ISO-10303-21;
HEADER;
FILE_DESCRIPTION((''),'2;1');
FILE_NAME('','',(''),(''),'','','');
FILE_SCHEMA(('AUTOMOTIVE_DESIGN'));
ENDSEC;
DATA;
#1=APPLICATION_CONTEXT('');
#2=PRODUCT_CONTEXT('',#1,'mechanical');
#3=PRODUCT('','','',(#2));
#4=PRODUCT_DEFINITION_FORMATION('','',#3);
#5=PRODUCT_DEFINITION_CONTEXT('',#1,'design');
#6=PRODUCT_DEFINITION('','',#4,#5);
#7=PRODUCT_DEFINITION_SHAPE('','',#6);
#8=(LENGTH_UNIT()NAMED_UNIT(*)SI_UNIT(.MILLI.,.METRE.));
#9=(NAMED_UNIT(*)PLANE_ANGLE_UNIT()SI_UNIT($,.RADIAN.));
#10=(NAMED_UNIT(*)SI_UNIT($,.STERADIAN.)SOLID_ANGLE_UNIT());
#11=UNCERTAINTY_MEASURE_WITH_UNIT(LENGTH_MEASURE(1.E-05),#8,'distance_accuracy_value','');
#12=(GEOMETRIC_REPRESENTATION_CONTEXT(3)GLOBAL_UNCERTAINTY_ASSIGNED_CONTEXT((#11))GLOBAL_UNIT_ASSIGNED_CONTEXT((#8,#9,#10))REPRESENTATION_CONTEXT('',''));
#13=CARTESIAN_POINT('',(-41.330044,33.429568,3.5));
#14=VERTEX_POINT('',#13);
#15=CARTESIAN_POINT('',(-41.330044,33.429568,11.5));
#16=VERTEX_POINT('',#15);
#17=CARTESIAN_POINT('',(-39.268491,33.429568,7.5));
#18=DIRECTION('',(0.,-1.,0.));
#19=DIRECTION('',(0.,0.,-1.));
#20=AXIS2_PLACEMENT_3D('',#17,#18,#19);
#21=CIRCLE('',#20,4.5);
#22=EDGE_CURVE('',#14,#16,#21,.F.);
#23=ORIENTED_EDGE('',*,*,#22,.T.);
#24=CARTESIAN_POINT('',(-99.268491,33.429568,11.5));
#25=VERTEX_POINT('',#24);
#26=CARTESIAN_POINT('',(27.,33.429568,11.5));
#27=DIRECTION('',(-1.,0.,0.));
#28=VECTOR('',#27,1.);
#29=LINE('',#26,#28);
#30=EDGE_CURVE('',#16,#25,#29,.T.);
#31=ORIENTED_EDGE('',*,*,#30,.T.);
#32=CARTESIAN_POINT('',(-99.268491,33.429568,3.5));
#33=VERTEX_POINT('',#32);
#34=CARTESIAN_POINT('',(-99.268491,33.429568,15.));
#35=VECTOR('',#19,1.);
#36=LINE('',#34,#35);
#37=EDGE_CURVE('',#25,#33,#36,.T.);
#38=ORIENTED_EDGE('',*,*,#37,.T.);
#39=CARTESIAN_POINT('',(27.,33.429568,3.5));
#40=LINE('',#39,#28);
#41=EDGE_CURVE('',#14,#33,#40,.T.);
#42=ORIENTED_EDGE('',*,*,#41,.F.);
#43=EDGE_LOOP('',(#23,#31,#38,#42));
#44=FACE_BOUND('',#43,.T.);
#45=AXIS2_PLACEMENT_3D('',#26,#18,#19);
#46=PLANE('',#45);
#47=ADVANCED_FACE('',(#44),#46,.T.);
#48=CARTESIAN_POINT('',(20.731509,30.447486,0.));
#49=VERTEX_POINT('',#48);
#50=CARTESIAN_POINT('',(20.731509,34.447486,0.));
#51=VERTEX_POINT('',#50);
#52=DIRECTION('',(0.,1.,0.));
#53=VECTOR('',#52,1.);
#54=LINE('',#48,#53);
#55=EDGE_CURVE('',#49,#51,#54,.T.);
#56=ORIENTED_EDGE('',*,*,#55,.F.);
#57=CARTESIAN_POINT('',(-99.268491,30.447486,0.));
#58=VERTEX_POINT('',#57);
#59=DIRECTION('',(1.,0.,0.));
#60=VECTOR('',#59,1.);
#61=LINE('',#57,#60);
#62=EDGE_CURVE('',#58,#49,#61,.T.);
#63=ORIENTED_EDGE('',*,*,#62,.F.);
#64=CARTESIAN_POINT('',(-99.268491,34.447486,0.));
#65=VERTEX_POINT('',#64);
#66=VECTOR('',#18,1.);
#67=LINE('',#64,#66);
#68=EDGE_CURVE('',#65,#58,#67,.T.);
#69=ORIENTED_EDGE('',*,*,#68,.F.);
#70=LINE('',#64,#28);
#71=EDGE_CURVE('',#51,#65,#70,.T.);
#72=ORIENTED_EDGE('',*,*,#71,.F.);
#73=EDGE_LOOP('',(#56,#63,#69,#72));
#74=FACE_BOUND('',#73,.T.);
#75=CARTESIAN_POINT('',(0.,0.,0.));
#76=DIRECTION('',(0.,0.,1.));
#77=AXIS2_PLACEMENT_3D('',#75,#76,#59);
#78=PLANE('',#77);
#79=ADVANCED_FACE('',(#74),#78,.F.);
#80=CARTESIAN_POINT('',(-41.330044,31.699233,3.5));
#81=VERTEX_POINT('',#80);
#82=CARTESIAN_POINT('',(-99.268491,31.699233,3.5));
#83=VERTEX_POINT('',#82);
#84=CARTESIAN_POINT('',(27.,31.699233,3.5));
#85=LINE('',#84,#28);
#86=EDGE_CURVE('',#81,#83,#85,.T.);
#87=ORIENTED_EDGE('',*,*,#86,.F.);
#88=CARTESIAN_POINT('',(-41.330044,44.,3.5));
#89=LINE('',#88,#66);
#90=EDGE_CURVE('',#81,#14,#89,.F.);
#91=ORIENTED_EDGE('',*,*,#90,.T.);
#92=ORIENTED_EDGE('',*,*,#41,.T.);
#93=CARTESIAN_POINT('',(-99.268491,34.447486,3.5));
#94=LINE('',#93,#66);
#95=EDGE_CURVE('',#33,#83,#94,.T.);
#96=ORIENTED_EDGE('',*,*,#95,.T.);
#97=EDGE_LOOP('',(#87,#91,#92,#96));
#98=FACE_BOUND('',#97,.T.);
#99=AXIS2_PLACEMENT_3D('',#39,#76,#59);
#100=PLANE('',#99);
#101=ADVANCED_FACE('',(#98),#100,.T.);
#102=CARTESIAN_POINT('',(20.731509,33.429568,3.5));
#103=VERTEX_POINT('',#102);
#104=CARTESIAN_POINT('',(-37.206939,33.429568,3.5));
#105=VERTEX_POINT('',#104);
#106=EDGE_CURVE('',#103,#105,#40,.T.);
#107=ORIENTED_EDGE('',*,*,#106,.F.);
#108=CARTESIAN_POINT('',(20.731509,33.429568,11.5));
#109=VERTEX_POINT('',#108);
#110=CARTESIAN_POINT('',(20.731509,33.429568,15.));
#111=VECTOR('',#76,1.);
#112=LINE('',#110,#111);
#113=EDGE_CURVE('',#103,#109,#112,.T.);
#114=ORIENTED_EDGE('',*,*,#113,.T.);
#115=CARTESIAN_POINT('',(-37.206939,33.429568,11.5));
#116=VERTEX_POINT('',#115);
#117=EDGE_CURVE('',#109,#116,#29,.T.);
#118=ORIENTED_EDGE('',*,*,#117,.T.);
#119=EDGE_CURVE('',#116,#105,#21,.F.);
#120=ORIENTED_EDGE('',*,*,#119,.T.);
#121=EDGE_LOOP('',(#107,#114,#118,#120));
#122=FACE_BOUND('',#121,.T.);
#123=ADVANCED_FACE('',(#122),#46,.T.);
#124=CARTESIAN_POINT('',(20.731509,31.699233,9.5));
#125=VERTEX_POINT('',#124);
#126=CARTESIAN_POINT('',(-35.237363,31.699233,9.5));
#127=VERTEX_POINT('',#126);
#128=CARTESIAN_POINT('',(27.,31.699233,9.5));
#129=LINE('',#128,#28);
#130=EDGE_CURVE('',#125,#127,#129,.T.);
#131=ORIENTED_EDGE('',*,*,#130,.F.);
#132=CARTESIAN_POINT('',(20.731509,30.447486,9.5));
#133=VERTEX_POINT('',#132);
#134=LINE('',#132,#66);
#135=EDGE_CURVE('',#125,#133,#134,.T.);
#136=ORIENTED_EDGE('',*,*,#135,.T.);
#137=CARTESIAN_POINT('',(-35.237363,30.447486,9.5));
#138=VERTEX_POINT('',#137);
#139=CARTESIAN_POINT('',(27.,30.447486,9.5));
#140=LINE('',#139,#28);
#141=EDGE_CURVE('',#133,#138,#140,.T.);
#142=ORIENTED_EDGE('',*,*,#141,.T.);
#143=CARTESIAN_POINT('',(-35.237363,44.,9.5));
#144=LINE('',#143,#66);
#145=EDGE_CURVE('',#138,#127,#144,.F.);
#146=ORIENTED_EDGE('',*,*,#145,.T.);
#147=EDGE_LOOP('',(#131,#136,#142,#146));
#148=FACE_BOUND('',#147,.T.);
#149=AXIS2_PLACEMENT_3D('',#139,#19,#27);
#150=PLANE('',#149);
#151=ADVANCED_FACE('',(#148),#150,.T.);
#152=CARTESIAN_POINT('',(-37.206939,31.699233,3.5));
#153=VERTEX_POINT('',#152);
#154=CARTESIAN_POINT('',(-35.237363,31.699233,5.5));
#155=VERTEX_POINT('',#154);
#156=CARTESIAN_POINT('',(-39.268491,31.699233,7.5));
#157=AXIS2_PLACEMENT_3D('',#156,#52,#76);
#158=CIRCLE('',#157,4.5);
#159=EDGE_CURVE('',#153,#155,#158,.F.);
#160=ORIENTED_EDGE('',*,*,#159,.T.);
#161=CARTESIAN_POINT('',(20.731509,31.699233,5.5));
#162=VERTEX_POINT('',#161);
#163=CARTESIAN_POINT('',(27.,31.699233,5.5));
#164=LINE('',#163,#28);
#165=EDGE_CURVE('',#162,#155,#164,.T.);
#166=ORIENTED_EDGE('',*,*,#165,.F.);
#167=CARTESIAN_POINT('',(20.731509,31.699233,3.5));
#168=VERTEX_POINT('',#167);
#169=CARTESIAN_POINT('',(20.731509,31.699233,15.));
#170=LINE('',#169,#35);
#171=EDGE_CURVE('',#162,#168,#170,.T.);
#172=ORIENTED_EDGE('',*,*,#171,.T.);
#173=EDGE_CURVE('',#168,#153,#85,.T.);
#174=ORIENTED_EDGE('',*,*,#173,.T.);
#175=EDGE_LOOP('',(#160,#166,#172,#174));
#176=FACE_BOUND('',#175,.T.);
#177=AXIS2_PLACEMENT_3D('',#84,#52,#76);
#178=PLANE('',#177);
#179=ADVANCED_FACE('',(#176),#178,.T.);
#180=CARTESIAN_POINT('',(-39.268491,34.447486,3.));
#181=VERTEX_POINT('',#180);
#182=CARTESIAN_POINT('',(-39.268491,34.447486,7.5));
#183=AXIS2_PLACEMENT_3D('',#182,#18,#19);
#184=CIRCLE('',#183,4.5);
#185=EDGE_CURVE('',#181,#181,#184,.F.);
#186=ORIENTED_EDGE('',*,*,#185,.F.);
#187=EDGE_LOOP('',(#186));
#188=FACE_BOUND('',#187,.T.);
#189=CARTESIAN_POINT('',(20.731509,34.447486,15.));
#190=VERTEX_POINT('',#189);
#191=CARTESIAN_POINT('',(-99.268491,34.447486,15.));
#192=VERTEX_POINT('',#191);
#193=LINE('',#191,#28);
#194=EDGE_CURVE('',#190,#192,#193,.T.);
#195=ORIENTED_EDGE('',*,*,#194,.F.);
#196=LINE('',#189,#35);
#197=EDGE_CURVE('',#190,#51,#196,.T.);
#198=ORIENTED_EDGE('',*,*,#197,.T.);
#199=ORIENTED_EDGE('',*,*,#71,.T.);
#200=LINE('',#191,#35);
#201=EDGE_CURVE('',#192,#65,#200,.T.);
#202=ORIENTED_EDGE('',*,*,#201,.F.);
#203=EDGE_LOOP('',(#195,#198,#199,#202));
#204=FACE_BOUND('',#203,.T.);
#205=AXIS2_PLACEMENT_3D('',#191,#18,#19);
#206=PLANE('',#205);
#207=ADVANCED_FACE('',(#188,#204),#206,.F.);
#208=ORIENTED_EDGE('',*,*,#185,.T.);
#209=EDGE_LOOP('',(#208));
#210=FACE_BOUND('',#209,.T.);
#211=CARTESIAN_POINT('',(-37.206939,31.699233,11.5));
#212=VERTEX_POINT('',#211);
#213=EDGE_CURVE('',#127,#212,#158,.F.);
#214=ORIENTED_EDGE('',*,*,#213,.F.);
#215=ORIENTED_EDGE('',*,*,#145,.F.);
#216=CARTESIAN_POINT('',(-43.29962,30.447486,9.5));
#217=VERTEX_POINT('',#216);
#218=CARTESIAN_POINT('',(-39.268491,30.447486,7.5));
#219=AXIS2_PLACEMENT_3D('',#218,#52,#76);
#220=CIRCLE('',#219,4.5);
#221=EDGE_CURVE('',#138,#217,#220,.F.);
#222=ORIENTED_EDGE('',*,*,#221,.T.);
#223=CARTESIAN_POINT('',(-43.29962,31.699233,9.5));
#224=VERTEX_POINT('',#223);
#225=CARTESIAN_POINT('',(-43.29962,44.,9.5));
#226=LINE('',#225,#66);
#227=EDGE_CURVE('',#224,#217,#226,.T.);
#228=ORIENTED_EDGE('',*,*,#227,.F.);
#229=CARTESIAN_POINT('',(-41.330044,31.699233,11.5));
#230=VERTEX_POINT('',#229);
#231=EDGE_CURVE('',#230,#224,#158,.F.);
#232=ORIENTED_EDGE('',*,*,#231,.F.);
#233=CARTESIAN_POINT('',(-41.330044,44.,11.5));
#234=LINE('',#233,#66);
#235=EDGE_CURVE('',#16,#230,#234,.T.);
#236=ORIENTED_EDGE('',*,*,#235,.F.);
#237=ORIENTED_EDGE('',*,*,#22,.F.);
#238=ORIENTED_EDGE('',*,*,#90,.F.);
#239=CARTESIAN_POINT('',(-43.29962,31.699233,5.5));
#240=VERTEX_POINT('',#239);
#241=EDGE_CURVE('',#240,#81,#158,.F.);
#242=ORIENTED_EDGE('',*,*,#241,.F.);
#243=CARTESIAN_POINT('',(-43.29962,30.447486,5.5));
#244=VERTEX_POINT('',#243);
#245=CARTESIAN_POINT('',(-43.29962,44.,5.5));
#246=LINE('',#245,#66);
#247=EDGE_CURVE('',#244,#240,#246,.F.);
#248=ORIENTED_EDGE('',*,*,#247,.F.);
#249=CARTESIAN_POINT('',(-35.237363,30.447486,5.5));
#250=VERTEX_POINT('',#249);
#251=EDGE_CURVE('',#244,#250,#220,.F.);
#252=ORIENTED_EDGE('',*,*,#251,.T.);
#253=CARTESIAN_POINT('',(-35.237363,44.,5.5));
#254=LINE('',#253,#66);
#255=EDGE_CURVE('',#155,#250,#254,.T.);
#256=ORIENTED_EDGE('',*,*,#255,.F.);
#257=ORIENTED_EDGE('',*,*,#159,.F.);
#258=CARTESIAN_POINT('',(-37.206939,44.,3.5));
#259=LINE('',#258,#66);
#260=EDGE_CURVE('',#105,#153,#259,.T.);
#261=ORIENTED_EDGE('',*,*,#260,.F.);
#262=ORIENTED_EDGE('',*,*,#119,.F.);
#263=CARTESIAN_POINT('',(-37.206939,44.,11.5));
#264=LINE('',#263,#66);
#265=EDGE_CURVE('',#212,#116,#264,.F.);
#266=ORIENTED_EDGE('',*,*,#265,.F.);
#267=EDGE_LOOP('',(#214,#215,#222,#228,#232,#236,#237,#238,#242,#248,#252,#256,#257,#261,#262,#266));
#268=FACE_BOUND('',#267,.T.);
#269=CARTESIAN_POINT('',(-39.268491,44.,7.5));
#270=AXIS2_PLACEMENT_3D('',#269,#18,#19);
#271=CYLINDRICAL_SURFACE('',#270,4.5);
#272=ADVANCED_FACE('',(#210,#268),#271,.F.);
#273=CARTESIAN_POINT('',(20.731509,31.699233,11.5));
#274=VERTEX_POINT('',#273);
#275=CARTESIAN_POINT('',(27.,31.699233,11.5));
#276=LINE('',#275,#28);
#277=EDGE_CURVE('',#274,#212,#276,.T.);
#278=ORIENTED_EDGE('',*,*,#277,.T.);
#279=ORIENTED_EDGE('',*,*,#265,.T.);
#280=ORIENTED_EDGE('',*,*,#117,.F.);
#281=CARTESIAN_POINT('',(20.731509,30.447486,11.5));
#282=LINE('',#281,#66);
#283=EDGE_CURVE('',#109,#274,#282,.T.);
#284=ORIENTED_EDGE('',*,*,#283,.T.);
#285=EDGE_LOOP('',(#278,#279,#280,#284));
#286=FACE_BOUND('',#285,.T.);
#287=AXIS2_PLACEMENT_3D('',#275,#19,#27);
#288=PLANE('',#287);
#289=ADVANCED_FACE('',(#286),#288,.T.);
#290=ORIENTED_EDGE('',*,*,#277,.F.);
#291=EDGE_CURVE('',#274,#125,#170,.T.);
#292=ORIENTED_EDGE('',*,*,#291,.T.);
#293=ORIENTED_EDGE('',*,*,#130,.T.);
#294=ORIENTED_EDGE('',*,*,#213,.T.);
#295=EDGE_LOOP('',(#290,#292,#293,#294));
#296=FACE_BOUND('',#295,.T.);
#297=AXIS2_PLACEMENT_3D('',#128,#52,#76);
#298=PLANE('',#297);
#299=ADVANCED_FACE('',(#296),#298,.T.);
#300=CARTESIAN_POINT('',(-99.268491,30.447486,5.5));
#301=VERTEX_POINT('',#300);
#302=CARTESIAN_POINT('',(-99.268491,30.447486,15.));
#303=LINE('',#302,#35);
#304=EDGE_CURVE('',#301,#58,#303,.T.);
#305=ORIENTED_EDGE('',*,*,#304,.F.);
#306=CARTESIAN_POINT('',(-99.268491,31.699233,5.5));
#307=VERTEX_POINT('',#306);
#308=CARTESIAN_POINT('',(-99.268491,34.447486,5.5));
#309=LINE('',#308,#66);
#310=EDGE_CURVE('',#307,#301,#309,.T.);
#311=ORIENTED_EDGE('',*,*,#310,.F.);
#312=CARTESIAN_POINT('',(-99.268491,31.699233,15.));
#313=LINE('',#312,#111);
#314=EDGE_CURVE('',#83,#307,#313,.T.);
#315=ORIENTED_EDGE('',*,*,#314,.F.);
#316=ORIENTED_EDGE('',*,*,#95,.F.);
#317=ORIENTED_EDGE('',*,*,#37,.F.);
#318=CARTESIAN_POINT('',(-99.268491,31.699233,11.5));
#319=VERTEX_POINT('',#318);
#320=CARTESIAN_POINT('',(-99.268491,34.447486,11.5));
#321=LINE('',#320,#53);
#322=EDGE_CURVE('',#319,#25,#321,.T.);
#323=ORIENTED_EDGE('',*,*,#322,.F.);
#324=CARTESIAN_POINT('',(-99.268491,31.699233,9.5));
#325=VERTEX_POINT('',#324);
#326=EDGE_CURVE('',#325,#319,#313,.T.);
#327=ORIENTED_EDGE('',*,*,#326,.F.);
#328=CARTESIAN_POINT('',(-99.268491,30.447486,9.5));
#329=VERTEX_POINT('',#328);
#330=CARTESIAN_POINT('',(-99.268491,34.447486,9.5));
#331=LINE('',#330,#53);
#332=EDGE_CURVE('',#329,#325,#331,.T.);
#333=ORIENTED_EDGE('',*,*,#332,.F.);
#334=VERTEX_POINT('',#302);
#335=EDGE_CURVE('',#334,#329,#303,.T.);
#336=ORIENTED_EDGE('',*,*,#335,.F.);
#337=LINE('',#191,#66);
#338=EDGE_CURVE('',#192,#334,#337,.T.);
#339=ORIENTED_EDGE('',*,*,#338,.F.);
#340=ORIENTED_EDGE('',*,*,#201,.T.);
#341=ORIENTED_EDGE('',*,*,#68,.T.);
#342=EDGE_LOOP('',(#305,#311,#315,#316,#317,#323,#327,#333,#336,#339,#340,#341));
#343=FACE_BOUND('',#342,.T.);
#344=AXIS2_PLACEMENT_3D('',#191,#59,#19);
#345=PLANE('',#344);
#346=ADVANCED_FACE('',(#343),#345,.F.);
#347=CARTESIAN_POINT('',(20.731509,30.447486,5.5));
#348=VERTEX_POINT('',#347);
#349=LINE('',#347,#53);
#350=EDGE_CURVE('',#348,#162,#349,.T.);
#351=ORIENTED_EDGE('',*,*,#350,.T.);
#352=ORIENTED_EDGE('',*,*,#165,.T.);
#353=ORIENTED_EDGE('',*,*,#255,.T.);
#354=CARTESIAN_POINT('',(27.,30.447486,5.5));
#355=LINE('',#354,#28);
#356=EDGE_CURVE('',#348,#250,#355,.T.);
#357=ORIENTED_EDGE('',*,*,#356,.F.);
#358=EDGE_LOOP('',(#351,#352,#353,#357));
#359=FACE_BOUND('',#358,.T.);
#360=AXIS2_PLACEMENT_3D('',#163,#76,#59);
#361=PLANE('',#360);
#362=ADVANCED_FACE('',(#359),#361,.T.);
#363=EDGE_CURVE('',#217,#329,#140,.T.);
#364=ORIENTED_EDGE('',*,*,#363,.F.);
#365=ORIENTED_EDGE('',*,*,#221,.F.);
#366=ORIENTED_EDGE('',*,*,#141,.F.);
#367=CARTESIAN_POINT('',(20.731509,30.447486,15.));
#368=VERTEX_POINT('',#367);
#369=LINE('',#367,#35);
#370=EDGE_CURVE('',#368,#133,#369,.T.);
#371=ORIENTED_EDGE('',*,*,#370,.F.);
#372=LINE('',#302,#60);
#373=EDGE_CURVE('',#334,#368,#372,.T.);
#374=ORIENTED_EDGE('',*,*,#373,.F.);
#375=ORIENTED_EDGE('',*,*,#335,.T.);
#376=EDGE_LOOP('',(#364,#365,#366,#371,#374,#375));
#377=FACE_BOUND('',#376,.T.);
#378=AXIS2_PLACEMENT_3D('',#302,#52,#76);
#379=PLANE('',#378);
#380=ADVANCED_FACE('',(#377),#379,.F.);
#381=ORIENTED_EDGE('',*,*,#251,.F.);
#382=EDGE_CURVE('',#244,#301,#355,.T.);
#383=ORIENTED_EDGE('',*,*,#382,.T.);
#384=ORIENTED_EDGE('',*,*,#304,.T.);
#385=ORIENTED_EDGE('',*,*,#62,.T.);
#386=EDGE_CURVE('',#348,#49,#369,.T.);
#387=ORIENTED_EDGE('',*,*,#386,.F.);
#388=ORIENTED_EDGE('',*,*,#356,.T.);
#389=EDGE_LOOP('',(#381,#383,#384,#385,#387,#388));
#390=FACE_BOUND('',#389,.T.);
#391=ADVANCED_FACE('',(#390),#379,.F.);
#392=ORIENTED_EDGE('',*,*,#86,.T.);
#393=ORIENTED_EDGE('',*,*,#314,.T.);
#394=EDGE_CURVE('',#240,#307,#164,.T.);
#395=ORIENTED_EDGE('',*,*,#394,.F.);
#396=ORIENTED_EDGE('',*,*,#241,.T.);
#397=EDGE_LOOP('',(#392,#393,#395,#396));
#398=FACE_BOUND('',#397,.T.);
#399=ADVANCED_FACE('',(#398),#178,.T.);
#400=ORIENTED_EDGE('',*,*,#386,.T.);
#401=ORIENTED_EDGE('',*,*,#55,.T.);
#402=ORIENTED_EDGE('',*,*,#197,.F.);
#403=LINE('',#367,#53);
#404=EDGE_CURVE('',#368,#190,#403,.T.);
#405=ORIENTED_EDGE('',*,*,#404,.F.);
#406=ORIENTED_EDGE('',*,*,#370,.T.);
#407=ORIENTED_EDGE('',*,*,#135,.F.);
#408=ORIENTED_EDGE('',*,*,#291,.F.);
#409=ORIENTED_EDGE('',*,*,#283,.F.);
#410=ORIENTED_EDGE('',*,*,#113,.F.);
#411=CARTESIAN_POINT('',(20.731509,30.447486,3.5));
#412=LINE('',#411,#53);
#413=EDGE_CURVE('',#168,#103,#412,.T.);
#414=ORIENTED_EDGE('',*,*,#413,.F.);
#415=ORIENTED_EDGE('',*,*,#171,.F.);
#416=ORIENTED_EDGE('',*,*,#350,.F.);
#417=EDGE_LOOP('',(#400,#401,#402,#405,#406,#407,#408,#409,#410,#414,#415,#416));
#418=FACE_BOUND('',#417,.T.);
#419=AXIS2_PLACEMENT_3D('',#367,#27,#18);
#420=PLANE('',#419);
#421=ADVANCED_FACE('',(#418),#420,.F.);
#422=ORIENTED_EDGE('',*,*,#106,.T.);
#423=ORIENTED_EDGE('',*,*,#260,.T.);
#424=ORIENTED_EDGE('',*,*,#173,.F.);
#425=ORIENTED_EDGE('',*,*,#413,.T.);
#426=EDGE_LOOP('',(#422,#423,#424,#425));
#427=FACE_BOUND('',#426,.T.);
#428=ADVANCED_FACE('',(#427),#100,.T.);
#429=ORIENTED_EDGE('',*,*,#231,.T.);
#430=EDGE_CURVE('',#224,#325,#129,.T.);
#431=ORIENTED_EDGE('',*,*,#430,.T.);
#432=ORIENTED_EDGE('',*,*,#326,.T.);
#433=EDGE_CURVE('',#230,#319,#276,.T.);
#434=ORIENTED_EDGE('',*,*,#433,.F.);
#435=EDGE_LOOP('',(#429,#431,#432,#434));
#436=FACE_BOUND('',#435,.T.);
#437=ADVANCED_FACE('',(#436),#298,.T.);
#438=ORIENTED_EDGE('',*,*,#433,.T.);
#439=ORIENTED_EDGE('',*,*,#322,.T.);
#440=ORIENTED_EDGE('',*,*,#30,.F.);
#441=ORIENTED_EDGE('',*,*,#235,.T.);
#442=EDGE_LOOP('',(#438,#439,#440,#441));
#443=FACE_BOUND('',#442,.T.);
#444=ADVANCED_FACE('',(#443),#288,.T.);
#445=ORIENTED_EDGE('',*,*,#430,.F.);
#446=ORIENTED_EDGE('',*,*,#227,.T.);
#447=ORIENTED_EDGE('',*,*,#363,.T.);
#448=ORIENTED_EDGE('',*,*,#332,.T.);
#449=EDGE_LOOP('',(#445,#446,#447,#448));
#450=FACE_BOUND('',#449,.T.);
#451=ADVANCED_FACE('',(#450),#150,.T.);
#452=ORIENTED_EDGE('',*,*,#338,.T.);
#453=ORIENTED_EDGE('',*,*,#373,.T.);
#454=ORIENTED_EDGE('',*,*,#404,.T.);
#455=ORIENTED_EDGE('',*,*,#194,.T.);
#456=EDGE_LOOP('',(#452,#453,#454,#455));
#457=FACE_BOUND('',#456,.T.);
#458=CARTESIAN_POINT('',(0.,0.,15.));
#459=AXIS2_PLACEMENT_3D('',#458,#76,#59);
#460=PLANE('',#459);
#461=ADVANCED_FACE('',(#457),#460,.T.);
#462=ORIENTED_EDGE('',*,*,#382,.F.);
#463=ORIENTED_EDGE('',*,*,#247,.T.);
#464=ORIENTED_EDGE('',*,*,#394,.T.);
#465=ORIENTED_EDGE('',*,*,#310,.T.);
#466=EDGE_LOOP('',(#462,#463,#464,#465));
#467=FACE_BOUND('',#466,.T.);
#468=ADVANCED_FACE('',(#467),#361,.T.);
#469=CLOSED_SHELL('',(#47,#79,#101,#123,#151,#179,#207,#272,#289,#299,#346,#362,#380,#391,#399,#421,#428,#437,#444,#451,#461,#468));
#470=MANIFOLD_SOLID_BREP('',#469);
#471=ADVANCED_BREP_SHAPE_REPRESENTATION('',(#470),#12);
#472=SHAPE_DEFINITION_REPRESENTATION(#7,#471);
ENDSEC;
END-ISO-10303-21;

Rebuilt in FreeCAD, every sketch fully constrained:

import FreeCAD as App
import Part
import Sketcher
Q = App.Units.Quantity


def add_polygon(sketch, points):
    """Adds a closed chain of lines whose ends are joined by coincident constraints."""
    first, n = sketch.GeometryCount, len(points)
    for a, b in zip(points, points[1:] + points[:1]):
        sketch.addGeometry(Part.LineSegment(App.Vector(*a, 0), App.Vector(*b, 0)), False)
    for i in range(n):
        sketch.addConstraint(Sketcher.Constraint("Coincident", first + i, 2, first + (i + 1) % n, 1))

doc = App.newDocument("Part")
body = doc.addObject("PartDesign::Body", "Body")

# Sketch on XY plane
sketch1 = body.newObject("Sketcher::SketchObject", "Sketch")
sketch1.AttachmentSupport = (doc.getObject("XY_Plane"), [""])
sketch1.MapMode = "FlatFace"
add_polygon(sketch1, [(-99.3, 34.4), (-99.3, 30.4), (20.7, 30.4), (20.7, 34.4)])  # lines 0-3
sketch1.addConstraint(Sketcher.Constraint("Vertical", 0))
sketch1.addConstraint(Sketcher.Constraint("Horizontal", 1))
sketch1.addConstraint(Sketcher.Constraint("Vertical", 2))
sketch1.addConstraint(Sketcher.Constraint("Horizontal", 3))
sketch1.addConstraint(Sketcher.Constraint("DistanceX", 1, 1, 1, 2, Q("120 mm")))
sketch1.addConstraint(Sketcher.Constraint("DistanceY", 0, 2, 0, 1, Q("4 mm")))
sketch1.addConstraint(Sketcher.Constraint("DistanceX", 0, 2, -1, 1, Q("99.268491 mm")))
sketch1.addConstraint(Sketcher.Constraint("DistanceY", -1, 1, 0, 2, Q("30.447486 mm")))
pad1 = body.newObject("PartDesign::Pad", "Pad")
pad1.Profile = sketch1
pad1.Length = 15

# Sketch on YZ plane
sketch2 = body.newObject("Sketcher::SketchObject", "Sketch001")
sketch2.AttachmentSupport = (doc.getObject("YZ_Plane"), [""])
sketch2.MapMode = "FlatFace"
add_polygon(sketch2, [(30.4, 9.5), (30.4, 5.5), (31.7, 5.5), (31.7, 3.5), (33.4, 3.5), (33.4, 11.5), (31.7, 11.5), (31.7, 9.5)])  # lines 0-7
sketch2.addConstraint(Sketcher.Constraint("Vertical", 0))
sketch2.addConstraint(Sketcher.Constraint("Horizontal", 1))
sketch2.addConstraint(Sketcher.Constraint("Vertical", 2))
sketch2.addConstraint(Sketcher.Constraint("Horizontal", 3))
sketch2.addConstraint(Sketcher.Constraint("Vertical", 4))
sketch2.addConstraint(Sketcher.Constraint("Horizontal", 5))
sketch2.addConstraint(Sketcher.Constraint("Vertical", 6))
sketch2.addConstraint(Sketcher.Constraint("Horizontal", 7))
sketch2.addConstraint(Sketcher.Constraint("Vertical", 2, 2, 5, 2))
sketch2.addConstraint(Sketcher.Constraint("Equal", 2, 6))
sketch2.addConstraint(Sketcher.Constraint("DistanceY", 0, 2, 0, 1, Q("4 mm")))
sketch2.addConstraint(Sketcher.Constraint("DistanceY", 2, 2, 2, 1, Q("2 mm")))
sketch2.addConstraint(Sketcher.Constraint("DistanceY", -1, 1, 0, 2, Q("5.5 mm")))
sketch2.addConstraint(Sketcher.Constraint("DistanceX", 1, 1, 1, 2, Q("1.251747 mm")))
sketch2.addConstraint(Sketcher.Constraint("DistanceX", 3, 1, 3, 2, Q("1.730335 mm")))
sketch2.addConstraint(Sketcher.Constraint("DistanceX", -1, 1, 3, 2, Q("33.429568 mm")))
pocket1 = body.newObject("PartDesign::Pocket", "Pocket")
pocket1.Profile = sketch2
pocket1.Type = "ThroughAll"
pocket1.Midplane = True

# Sketch on XZ plane
sketch3 = body.newObject("Sketcher::SketchObject", "Sketch002")
sketch3.AttachmentSupport = (doc.getObject("XZ_Plane"), [""])
sketch3.MapMode = "FlatFace"
sketch3.addGeometry(Part.Circle(App.Vector(-39.3, 7.5, 0), App.Vector(0, 0, 1), 4.5), False)
sketch3.addConstraint(Sketcher.Constraint("Diameter", 0, Q("9 mm")))
sketch3.addConstraint(Sketcher.Constraint("DistanceY", -1, 1, 0, 3, Q("7.5 mm")))
sketch3.addConstraint(Sketcher.Constraint("DistanceX", 0, 3, -1, 1, Q("39.268491 mm")))
pocket2 = body.newObject("PartDesign::Pocket", "Pocket001")
pocket2.Profile = sketch3
pocket2.Length = 44

doc.recompute()
